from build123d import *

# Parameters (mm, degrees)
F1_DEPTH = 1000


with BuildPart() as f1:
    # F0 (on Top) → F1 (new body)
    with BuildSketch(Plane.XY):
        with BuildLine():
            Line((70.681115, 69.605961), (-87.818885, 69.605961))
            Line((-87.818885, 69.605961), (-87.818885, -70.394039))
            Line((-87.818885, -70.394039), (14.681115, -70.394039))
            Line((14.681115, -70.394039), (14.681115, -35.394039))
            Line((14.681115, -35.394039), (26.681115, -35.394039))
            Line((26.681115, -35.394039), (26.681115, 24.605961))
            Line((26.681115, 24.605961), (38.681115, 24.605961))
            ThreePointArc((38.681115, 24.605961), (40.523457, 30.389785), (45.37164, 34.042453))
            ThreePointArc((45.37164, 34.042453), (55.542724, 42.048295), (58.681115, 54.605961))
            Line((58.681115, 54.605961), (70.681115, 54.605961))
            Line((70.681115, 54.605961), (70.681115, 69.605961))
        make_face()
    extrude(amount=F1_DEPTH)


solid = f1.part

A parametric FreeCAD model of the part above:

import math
import FreeCAD as App
import Part
import Sketcher

V = App.Vector
Q = App.Units.Quantity

doc = App.newDocument("Part")
params = doc.addObject("Spreadsheet::Sheet", "Params")
for row, (alias, value) in enumerate([
    ("sketch1_radius", "10 mm"),
    ("sketch1_radius2", "20 mm"),
    ("sketch1_width", "12 mm"),
    ("sketch1_height", "140 mm"),
    ("sketch1_height2", "35 mm"),
    ("pad1_length", "1000 mm"),
], start=1):
    params.set(f"A{row}", alias)
    params.set(f"B{row}", "=" + value)
    params.setAlias(f"B{row}", alias)

body = doc.addObject("PartDesign::Body", "Body")

sketch1 = doc.addObject("Sketcher::SketchObject", "Sketch")
body.addObject(sketch1)
sketch1.AttachmentSupport = (doc.XY_Plane, [""])
sketch1.MapMode = "FlatFace"
sketch1.addGeometry([
    Part.LineSegment(V(70.681115, 69.605961, 0), V(-87.818885, 69.605961, 0)),
    Part.LineSegment(V(-87.818885, 69.605961, 0), V(-87.818885, -70.394039, 0)),
    Part.LineSegment(V(-87.818885, -70.394039, 0), V(14.681115, -70.394039, 0)),
    Part.LineSegment(V(14.681115, -70.394039, 0), V(14.681115, -35.394039, 0)),
    Part.LineSegment(V(14.681115, -35.394039, 0), V(26.681115, -35.394039, 0)),
    Part.LineSegment(V(26.681115, -35.394039, 0), V(26.681115, 24.605961, 0)),
    Part.LineSegment(V(26.681115, 24.605961, 0), V(38.681115, 24.605961, 0)),
    Part.ArcOfCircle(Part.Circle(V(48.681115, 24.605961, 0), V(0, 0, 1), 10), math.radians(109.326295), math.radians(180.000002)),
    Part.ArcOfCircle(Part.Circle(V(38.75269, 52.915436, 0), V(0, 0, 1), 20), math.radians(-70.673706), math.radians(4.848783)),
    Part.LineSegment(V(58.681115, 54.605961, 0), V(70.681115, 54.605961, 0)),
    Part.LineSegment(V(70.681115, 54.605961, 0), V(70.681115, 69.605961, 0)),
], False)
sketch1.addConstraint([
    Sketcher.Constraint("Coincident", 0, 2, 1, 1),
    Sketcher.Constraint("Coincident", 1, 2, 2, 1),
    Sketcher.Constraint("Coincident", 2, 2, 3, 1),
    Sketcher.Constraint("Coincident", 3, 2, 4, 1),
    Sketcher.Constraint("Coincident", 4, 2, 5, 1),
    Sketcher.Constraint("Coincident", 5, 2, 6, 1),
    Sketcher.Constraint("Coincident", 6, 2, 7, 2),
    Sketcher.Constraint("Tangent", 7, 1, 8, 1),
    Sketcher.Constraint("Coincident", 8, 2, 9, 1),
    Sketcher.Constraint("Coincident", 9, 2, 10, 1),
    Sketcher.Constraint("Coincident", 10, 2, 0, 1),
    Sketcher.Constraint("Horizontal", 0),
    Sketcher.Constraint("Vertical", 1),
    Sketcher.Constraint("Horizontal", 2),
    Sketcher.Constraint("Vertical", 3),
    Sketcher.Constraint("Horizontal", 4),
    Sketcher.Constraint("Vertical", 5),
    Sketcher.Constraint("Horizontal", 6),
    Sketcher.Constraint("Horizontal", 9),
    Sketcher.Constraint("Vertical", 10),
    Sketcher.Constraint("Horizontal", 7, 3, 5, 2),
    Sketcher.Constraint("Equal", 4, 6),
    Sketcher.Constraint("Equal", 6, 9),
    Sketcher.Constraint("Radius", 7, Q("10 mm")),
    Sketcher.Constraint("Radius", 8, Q("20 mm")),
    Sketcher.Constraint("DistanceX", 4, 1, 4, 2, Q("12 mm")),
    Sketcher.Constraint("DistanceY", 1, 2, 1, 1, Q("140 mm")),
    Sketcher.Constraint("DistanceY", 3, 1, 3, 2, Q("35 mm")),
    Sketcher.Constraint("DistanceY", 5, 1, 5, 2, Q("60 mm")),
    Sketcher.Constraint("DistanceY", 10, 1, 10, 2, Q("15 mm")),
    Sketcher.Constraint("DistanceX", 0, 2, 0, 1, Q("158.5 mm")),
    Sketcher.Constraint("DistanceX", 2, 1, 2, 2, Q("102.5 mm")),
    Sketcher.Constraint("DistanceY", -1, 1, 7, 3, Q("24.605961 mm")),
    Sketcher.Constraint("DistanceX", -1, 1, 8, 3, Q("38.75269 mm")),
])
sketch1.setExpression("Constraints[23]", "Params.sketch1_radius")
sketch1.setExpression("Constraints[24]", "Params.sketch1_radius2")
sketch1.setExpression("Constraints[25]", "Params.sketch1_width")
sketch1.setExpression("Constraints[26]", "Params.sketch1_height")
sketch1.setExpression("Constraints[27]", "Params.sketch1_height2")
pad1 = doc.addObject("PartDesign::Pad", "Pad")
body.addObject(pad1)
pad1.Profile = sketch1
pad1.setExpression("Length", "Params.pad1_length")

doc.recompute()
